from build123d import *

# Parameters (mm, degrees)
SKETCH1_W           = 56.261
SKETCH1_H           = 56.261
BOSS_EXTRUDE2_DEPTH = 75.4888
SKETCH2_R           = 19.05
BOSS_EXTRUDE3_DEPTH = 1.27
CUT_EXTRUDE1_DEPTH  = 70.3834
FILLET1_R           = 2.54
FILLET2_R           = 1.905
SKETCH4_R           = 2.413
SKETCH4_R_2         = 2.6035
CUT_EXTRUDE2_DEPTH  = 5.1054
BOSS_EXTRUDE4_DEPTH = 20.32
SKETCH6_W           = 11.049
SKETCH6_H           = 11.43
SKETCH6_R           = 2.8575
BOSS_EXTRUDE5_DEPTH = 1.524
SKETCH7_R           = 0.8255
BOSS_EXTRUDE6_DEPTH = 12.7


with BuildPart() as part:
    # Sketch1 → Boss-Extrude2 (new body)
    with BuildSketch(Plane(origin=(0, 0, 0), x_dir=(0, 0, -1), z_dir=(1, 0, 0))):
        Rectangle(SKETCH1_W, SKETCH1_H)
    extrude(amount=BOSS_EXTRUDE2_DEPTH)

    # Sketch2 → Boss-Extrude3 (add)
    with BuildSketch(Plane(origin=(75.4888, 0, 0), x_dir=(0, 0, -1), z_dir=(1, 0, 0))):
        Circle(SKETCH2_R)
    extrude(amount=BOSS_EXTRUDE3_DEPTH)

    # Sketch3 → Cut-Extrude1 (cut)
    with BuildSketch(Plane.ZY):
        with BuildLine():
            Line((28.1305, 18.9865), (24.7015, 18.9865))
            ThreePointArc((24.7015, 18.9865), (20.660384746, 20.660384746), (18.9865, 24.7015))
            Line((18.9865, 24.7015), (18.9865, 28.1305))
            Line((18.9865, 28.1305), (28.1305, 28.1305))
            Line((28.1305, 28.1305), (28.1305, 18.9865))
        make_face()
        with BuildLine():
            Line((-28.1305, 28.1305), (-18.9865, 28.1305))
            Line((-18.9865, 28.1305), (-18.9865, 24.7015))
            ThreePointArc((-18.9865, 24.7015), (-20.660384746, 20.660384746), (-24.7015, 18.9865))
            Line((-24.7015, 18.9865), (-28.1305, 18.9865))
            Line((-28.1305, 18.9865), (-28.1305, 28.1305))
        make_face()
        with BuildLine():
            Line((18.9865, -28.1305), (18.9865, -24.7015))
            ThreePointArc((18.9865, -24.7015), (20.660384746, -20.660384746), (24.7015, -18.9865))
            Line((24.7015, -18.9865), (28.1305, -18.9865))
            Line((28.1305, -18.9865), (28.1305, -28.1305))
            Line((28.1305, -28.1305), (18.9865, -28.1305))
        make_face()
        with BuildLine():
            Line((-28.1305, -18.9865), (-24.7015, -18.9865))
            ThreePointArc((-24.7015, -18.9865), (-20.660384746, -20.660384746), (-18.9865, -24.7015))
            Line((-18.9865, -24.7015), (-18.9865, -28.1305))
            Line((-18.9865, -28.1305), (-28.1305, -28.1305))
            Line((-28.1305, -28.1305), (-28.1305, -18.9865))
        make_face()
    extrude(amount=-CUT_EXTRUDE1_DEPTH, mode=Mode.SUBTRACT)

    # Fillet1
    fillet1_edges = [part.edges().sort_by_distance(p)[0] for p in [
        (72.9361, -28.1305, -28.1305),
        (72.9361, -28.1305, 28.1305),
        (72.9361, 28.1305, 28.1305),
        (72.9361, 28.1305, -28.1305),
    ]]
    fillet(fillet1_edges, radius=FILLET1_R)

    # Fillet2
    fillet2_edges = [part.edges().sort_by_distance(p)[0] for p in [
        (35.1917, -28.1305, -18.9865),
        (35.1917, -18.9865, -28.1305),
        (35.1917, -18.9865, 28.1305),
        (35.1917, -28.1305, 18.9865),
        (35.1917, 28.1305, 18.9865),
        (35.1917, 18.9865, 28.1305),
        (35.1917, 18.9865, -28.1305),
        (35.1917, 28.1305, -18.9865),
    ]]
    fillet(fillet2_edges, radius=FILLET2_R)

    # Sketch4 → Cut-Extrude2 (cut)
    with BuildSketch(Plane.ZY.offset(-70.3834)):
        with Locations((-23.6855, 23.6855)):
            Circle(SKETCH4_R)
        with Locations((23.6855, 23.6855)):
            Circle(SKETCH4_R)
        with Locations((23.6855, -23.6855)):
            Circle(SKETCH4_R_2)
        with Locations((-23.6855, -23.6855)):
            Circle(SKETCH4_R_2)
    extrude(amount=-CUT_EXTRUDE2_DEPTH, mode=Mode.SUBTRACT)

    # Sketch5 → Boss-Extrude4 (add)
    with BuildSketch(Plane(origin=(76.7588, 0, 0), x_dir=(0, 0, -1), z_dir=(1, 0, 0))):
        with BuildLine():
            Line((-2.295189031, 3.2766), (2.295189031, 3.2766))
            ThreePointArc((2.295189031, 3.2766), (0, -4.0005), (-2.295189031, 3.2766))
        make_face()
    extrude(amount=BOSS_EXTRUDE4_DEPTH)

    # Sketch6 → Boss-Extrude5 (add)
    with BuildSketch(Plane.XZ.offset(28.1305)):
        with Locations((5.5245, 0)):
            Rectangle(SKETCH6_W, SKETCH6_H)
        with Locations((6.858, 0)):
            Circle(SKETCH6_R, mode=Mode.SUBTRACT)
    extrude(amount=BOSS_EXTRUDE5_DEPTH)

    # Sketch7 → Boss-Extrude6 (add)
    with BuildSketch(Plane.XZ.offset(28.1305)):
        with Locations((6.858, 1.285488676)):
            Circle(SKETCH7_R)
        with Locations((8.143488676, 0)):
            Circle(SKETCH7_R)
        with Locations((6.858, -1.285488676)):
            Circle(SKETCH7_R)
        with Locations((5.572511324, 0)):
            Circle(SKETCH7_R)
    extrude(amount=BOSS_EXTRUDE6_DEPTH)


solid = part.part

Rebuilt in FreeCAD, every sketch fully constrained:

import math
import FreeCAD as App
import Part
import Sketcher

V = App.Vector
Q = App.Units.Quantity


def edges_at(feature, points):
    """Names of the edges that pass closest to the given points."""
    edges = feature.Shape.Edges
    near = lambda p: min(range(len(edges)), key=lambda i: edges[i].distToShape(Part.Vertex(*p))[0])
    return sorted({f"Edge{near(p) + 1}" for p in points})

doc = App.newDocument("Part")
body = doc.addObject("PartDesign::Body", "Body")

# Sketch on YZ plane
sketch1 = body.newObject("Sketcher::SketchObject", "Sketch")
sketch1.AttachmentSupport = (doc.getObject("YZ_Plane"), [""])
sketch1.MapMode = "FlatFace"
sketch1.addGeometry([
    Part.LineSegment(V(28, 28, 0), V(-28, 28, 0)),
    Part.LineSegment(V(-28, 28, 0), V(-28, -28, 0)),
    Part.LineSegment(V(-28, -28, 0), V(28, -28, 0)),
    Part.LineSegment(V(28, -28, 0), V(28, 28, 0)),
], False)
sketch1.addConstraint([
    Sketcher.Constraint("Coincident", 0, 2, 1, 1),
    Sketcher.Constraint("Coincident", 1, 2, 2, 1),
    Sketcher.Constraint("Coincident", 2, 2, 3, 1),
    Sketcher.Constraint("Coincident", 3, 2, 0, 1),
    Sketcher.Constraint("Horizontal", 0),
    Sketcher.Constraint("Vertical", 1),
    Sketcher.Constraint("Horizontal", 2),
    Sketcher.Constraint("Vertical", 3),
    Sketcher.Constraint("Symmetric", 0, 2, 2, 2, -1, 1),
    Sketcher.Constraint("Equal", 2, 1),
    Sketcher.Constraint("DistanceX", 0, 2, 0, 1, Q("2.215 in")),
])
pad1 = body.newObject("PartDesign::Pad", "Pad")
pad1.Profile = sketch1
pad1.Length = Q("2.972 in")

# Sketch on YZ plane
sketch2 = body.newObject("Sketcher::SketchObject", "Sketch001")
sketch2.AttachmentSupport = (doc.getObject("YZ_Plane"), [""])
sketch2.MapMode = "FlatFace"
sketch2.AttachmentOffset = App.Placement(V(0, 0, 2.972 * 25.4), App.Rotation())
sketch2.addGeometry(Part.Circle(V(0, 0, 0), V(0, 0, 1), 19), False)
sketch2.addConstraint([
    Sketcher.Constraint("Coincident", 0, 3, -1, 1),
    Sketcher.Constraint("Diameter", 0, Q("1.5 in")),
])
pad2 = body.newObject("PartDesign::Pad", "Pad001")
pad2.Profile = sketch2
pad2.Length = Q("0.05 in")

# Sketch on YZ plane
sketch3 = body.newObject("Sketcher::SketchObject", "Sketch002")
sketch3.AttachmentSupport = (doc.getObject("YZ_Plane"), [""])
sketch3.MapMode = "FlatFace"
sketch3.addGeometry([
    Part.LineSegment(V(19, 24.7, 0), V(19, 28.1, 0)),  # 0
    Part.LineSegment(V(19, 28.1, 0), V(28.1, 28.1, 0)),  # 1
    Part.LineSegment(V(28.1, 28.1, 0), V(28.1, 19, 0)),  # 2
    Part.LineSegment(V(28.1, 19, 0), V(24.7, 19, 0)),  # 3
    Part.ArcOfCircle(Part.Circle(V(24.7, 24.7, 0), V(0, 0, 1), 5.7), math.radians(-180), math.radians(-90)),  # 4
    Part.LineSegment(V(28.1, -19, 0), V(28.1, -28.1, 0)),  # 5
    Part.LineSegment(V(28.1, -28.1, 0), V(19, -28.1, 0)),  # 6
    Part.LineSegment(V(19, -28.1, 0), V(19, -24.7, 0)),  # 7
    Part.ArcOfCircle(Part.Circle(V(24.7, -24.7, 0), V(0, 0, 1), 5.7), math.radians(90), math.radians(180)),  # 8
    Part.LineSegment(V(24.7, -19, 0), V(28.1, -19, 0)),  # 9
    Part.LineSegment(V(-24.7, 19, 0), V(-28.1, 19, 0)),  # 10
    Part.LineSegment(V(-28.1, 19, 0), V(-28.1, 28.1, 0)),  # 11
    Part.LineSegment(V(-28.1, 28.1, 0), V(-19, 28.1, 0)),  # 12
    Part.LineSegment(V(-19, 28.1, 0), V(-19, 24.7, 0)),  # 13
    Part.ArcOfCircle(Part.Circle(V(-24.7, 24.7, 0), V(0, 0, 1), 5.7), math.radians(-90), math.radians(0)),  # 14
    Part.LineSegment(V(-19, -24.7, 0), V(-19, -28.1, 0)),  # 15
    Part.LineSegment(V(-19, -28.1, 0), V(-28.1, -28.1, 0)),  # 16
    Part.LineSegment(V(-28.1, -28.1, 0), V(-28.1, -19, 0)),  # 17
    Part.LineSegment(V(-28.1, -19, 0), V(-24.7, -19, 0)),  # 18
    Part.ArcOfCircle(Part.Circle(V(-24.7, -24.7, 0), V(0, 0, 1), 5.7), math.radians(0), math.radians(90)),  # 19
], False)
sketch3.addConstraint([
    Sketcher.Constraint("Coincident", 0, 2, 1, 1),
    Sketcher.Constraint("Coincident", 1, 2, 2, 1),
    Sketcher.Constraint("Coincident", 2, 2, 3, 1),
    Sketcher.Constraint("Tangent", 3, 2, 4, 2),
    Sketcher.Constraint("Tangent", 4, 1, 0, 1),
    Sketcher.Constraint("Coincident", 5, 2, 6, 1),
    Sketcher.Constraint("Coincident", 6, 2, 7, 1),
    Sketcher.Constraint("Tangent", 7, 2, 8, 2),
    Sketcher.Constraint("Tangent", 8, 1, 9, 1),
    Sketcher.Constraint("Coincident", 9, 2, 5, 1),
    Sketcher.Constraint("Coincident", 10, 2, 11, 1),
    Sketcher.Constraint("Coincident", 11, 2, 12, 1),
    Sketcher.Constraint("Coincident", 12, 2, 13, 1),
    Sketcher.Constraint("Tangent", 13, 2, 14, 2),
    Sketcher.Constraint("Tangent", 14, 1, 10, 1),
    Sketcher.Constraint("Coincident", 15, 2, 16, 1),
    Sketcher.Constraint("Coincident", 16, 2, 17, 1),
    Sketcher.Constraint("Coincident", 17, 2, 18, 1),
    Sketcher.Constraint("Tangent", 18, 2, 19, 2),
    Sketcher.Constraint("Tangent", 19, 1, 15, 1),
    Sketcher.Constraint("Vertical", 0),
    Sketcher.Constraint("Horizontal", 1),
    Sketcher.Constraint("Vertical", 2),
    Sketcher.Constraint("Horizontal", 3),
    Sketcher.Constraint("Vertical", 5),
    Sketcher.Constraint("Horizontal", 6),
    Sketcher.Constraint("Vertical", 7),
    Sketcher.Constraint("Horizontal", 9),
    Sketcher.Constraint("Horizontal", 10),
    Sketcher.Constraint("Vertical", 11),
    Sketcher.Constraint("Horizontal", 12),
    Sketcher.Constraint("Vertical", 13),
    Sketcher.Constraint("Vertical", 15),
    Sketcher.Constraint("Horizontal", 16),
    Sketcher.Constraint("Vertical", 17),
    Sketcher.Constraint("Horizontal", 18),
    Sketcher.Constraint("Equal", 4, 8),
    Sketcher.Constraint("Equal", 8, 14),
    Sketcher.Constraint("Equal", 14, 19),
    Sketcher.Constraint("Symmetric", 8, 3, 14, 3, -1, 1),
    Sketcher.Constraint("Symmetric", 4, 3, 19, 3, -1, 1),
    Sketcher.Constraint("Symmetric", 5, 2, 11, 2, -1, 1),
    Sketcher.Constraint("Symmetric", 1, 2, 16, 2, -1, 1),
    Sketcher.Constraint("Symmetric", 4, 3, 14, 3, -2),
    Sketcher.Constraint("Symmetric", 1, 2, 11, 2, -2),
    Sketcher.Constraint("Equal", 18, 0),
    Sketcher.Constraint("Radius", 4, Q("0.225 in")),
    Sketcher.Constraint("DistanceX", 1, 1, 1, 2, Q("0.36 in")),
    Sketcher.Constraint("DistanceX", 14, 3, 0, 2, Q("1.72 in")),
    Sketcher.Constraint("DistanceY", 8, 3, 0, 2, Q("2.08 in")),
])
pocket1 = body.newObject("PartDesign::Pocket", "Pocket")
pocket1.Profile = sketch3
pocket1.Length = Q("2.771 in")
pocket1.Reversed = True
doc.recompute()

fillet = body.newObject("PartDesign::Fillet", "Fillet")
fillet.Base = (pocket1, edges_at(pocket1, [
    (72.936, -28.131, -28.131),
    (72.936, -28.131, 28.131),
    (72.936, 28.131, 28.131),
    (72.936, 28.131, -28.131),
]))
fillet.Radius = Q("0.1 in")
doc.recompute()

fillet2 = body.newObject("PartDesign::Fillet", "Fillet001")
fillet2.Base = (fillet, edges_at(fillet, [
    (35.192, -28.131, -18.986),
    (35.192, -18.986, -28.131),
    (35.192, -18.986, 28.131),
    (35.192, -28.131, 18.986),
    (35.192, 28.131, 18.986),
    (35.192, 18.986, 28.131),
    (35.192, 18.986, -28.131),
    (35.192, 28.131, -18.986),
]))
fillet2.Radius = Q("0.075 in")

# Sketch on YZ plane
sketch4 = body.newObject("Sketcher::SketchObject", "Sketch003")
sketch4.AttachmentSupport = (doc.getObject("YZ_Plane"), [""])
sketch4.MapMode = "FlatFace"
sketch4.AttachmentOffset = App.Placement(V(0, 0, 2.771 * 25.4), App.Rotation())
sketch4.addGeometry([
    Part.Circle(V(23.7, -23.7, 0), V(0, 0, 1), 2.4),
    Part.Circle(V(23.7, 23.7, 0), V(0, 0, 1), 2.4),
    Part.Circle(V(-23.7, 23.7, 0), V(0, 0, 1), 2.6),
    Part.Circle(V(-23.7, -23.7, 0), V(0, 0, 1), 2.6),
], False)
sketch4.addConstraint([
    Sketcher.Constraint("Equal", 0, 1),
    Sketcher.Constraint("Equal", 2, 3),
    Sketcher.Constraint("Symmetric", 0, 3, 2, 3, -1, 1),
    Sketcher.Constraint("Symmetric", 1, 3, 3, 3, -1, 1),
    Sketcher.Constraint("Symmetric", 1, 3, 2, 3, -2),
    Sketcher.Constraint("Diameter", 0, Q("0.19 in")),
    Sketcher.Constraint("Diameter", 2, Q("0.205 in")),
    Sketcher.Constraint("DistanceY", 0, 3, 1, 3, Q("1.865 in")),
    Sketcher.Constraint("DistanceX", 2, 3, 1, 3, Q("1.865 in")),
])
pocket2 = body.newObject("PartDesign::Pocket", "Pocket001")
pocket2.Profile = sketch4
pocket2.Length = Q("0.201 in")
pocket2.Reversed = True

# Sketch on YZ plane
sketch5 = body.newObject("Sketcher::SketchObject", "Sketch004")
sketch5.AttachmentSupport = (doc.getObject("YZ_Plane"), [""])
sketch5.MapMode = "FlatFace"
sketch5.AttachmentOffset = App.Placement(V(0, 0, 3.022 * 25.4), App.Rotation())
sketch5.addGeometry([
    Part.LineSegment(V(3.3, -2.3, 0), V(3.3, 2.3, 0)),
    Part.ArcOfCircle(Part.Circle(V(0, 0, 0), V(0, 0, 1), 4), math.radians(35), math.radians(325)),
], False)
sketch5.addConstraint([
    Sketcher.Constraint("Coincident", 0, 1, 1, 2),
    Sketcher.Constraint("Coincident", 1, 1, 0, 2),
    Sketcher.Constraint("Vertical", 0),
    Sketcher.Constraint("Coincident", 1, 3, -1, 1),
    Sketcher.Constraint("Radius", 1, Q("0.1575 in")),
    Sketcher.Constraint("DistanceX", -1, 1, 0, 1, Q("0.129 in")),
])
pad3 = body.newObject("PartDesign::Pad", "Pad002")
pad3.Profile = sketch5
pad3.Length = Q("0.8 in")

# Sketch on XZ plane
sketch6 = body.newObject("Sketcher::SketchObject", "Sketch005")
sketch6.AttachmentSupport = (doc.getObject("XZ_Plane"), [""])
sketch6.MapMode = "FlatFace"
sketch6.AttachmentOffset = App.Placement(V(0, 0, 1.1075 * 25.4), App.Rotation())
sketch6.addGeometry([
    Part.LineSegment(V(0, 5.7, 0), V(0, -5.7, 0)),  # 0
    Part.LineSegment(V(0, -5.7, 0), V(11, -5.7, 0)),  # 1
    Part.LineSegment(V(11, -5.7, 0), V(11, 5.7, 0)),  # 2
    Part.LineSegment(V(11, 5.7, 0), V(0, 5.7, 0)),  # 3
    Part.Circle(V(6.9, 0, 0), V(0, 0, 1), 2.9),  # 4
], False)
sketch6.addConstraint([
    Sketcher.Constraint("Coincident", 0, 2, 1, 1),
    Sketcher.Constraint("Coincident", 1, 2, 2, 1),
    Sketcher.Constraint("Coincident", 2, 2, 3, 1),
    Sketcher.Constraint("Coincident", 3, 2, 0, 1),
    Sketcher.Constraint("Vertical", 0),
    Sketcher.Constraint("Horizontal", 1),
    Sketcher.Constraint("Vertical", 2),
    Sketcher.Constraint("Horizontal", 3),
    Sketcher.Constraint("Symmetric", 0, 2, 3, 2, -1, 1),
    Sketcher.Constraint("PointOnObject", 4, 3, -1),
    Sketcher.Constraint("Diameter", 4, Q("0.225 in")),
    Sketcher.Constraint("DistanceY", 0, 2, 0, 1, Q("0.45 in")),
    Sketcher.Constraint("DistanceX", 1, 1, 1, 2, Q("0.435 in")),
    Sketcher.Constraint("DistanceX", -1, 1, 4, 3, Q("0.27 in")),
])
pad4 = body.newObject("PartDesign::Pad", "Pad003")
pad4.Profile = sketch6
pad4.Length = Q("0.06 in")

# Sketch on XZ plane
sketch7 = body.newObject("Sketcher::SketchObject", "Sketch006")
sketch7.AttachmentSupport = (doc.getObject("XZ_Plane"), [""])
sketch7.MapMode = "FlatFace"
sketch7.AttachmentOffset = App.Placement(V(0, 0, 1.1075 * 25.4), App.Rotation())
sketch7.addGeometry([
    Part.Circle(V(6.9, 1.3, 0), V(0, 0, 1), 0.8),
    Part.Circle(V(8.1, 0, 0), V(0, 0, 1), 0.8),
    Part.Circle(V(6.9, -1.3, 0), V(0, 0, 1), 0.8),
    Part.Circle(V(5.6, 0, 0), V(0, 0, 1), 0.8),
], False)
sketch7.addConstraint([
    Sketcher.Constraint("Equal", 0, 1),
    Sketcher.Constraint("Equal", 1, 2),
    Sketcher.Constraint("Equal", 2, 3),
    Sketcher.Constraint("Symmetric", 0, 3, 2, 3, -1),
    Sketcher.Constraint("PointOnObject", 1, 3, -1),
    Sketcher.Constraint("PointOnObject", 3, 3, -1),
    Sketcher.Constraint("Diameter", 0, Q("0.065 in")),
    Sketcher.Constraint("DistanceX", -1, 1, 0, 3, Q("0.27 in")),
    Sketcher.Constraint("DistanceY", -1, 1, 0, 3, 1.285489),
    Sketcher.Constraint("DistanceX", -1, 1, 1, 3, 8.143489),
    Sketcher.Constraint("DistanceX", -1, 1, 3, 3, 5.572511),
])
pad5 = body.newObject("PartDesign::Pad", "Pad004")
pad5.Profile = sketch7
pad5.Length = Q("0.5 in")

doc.recompute()
